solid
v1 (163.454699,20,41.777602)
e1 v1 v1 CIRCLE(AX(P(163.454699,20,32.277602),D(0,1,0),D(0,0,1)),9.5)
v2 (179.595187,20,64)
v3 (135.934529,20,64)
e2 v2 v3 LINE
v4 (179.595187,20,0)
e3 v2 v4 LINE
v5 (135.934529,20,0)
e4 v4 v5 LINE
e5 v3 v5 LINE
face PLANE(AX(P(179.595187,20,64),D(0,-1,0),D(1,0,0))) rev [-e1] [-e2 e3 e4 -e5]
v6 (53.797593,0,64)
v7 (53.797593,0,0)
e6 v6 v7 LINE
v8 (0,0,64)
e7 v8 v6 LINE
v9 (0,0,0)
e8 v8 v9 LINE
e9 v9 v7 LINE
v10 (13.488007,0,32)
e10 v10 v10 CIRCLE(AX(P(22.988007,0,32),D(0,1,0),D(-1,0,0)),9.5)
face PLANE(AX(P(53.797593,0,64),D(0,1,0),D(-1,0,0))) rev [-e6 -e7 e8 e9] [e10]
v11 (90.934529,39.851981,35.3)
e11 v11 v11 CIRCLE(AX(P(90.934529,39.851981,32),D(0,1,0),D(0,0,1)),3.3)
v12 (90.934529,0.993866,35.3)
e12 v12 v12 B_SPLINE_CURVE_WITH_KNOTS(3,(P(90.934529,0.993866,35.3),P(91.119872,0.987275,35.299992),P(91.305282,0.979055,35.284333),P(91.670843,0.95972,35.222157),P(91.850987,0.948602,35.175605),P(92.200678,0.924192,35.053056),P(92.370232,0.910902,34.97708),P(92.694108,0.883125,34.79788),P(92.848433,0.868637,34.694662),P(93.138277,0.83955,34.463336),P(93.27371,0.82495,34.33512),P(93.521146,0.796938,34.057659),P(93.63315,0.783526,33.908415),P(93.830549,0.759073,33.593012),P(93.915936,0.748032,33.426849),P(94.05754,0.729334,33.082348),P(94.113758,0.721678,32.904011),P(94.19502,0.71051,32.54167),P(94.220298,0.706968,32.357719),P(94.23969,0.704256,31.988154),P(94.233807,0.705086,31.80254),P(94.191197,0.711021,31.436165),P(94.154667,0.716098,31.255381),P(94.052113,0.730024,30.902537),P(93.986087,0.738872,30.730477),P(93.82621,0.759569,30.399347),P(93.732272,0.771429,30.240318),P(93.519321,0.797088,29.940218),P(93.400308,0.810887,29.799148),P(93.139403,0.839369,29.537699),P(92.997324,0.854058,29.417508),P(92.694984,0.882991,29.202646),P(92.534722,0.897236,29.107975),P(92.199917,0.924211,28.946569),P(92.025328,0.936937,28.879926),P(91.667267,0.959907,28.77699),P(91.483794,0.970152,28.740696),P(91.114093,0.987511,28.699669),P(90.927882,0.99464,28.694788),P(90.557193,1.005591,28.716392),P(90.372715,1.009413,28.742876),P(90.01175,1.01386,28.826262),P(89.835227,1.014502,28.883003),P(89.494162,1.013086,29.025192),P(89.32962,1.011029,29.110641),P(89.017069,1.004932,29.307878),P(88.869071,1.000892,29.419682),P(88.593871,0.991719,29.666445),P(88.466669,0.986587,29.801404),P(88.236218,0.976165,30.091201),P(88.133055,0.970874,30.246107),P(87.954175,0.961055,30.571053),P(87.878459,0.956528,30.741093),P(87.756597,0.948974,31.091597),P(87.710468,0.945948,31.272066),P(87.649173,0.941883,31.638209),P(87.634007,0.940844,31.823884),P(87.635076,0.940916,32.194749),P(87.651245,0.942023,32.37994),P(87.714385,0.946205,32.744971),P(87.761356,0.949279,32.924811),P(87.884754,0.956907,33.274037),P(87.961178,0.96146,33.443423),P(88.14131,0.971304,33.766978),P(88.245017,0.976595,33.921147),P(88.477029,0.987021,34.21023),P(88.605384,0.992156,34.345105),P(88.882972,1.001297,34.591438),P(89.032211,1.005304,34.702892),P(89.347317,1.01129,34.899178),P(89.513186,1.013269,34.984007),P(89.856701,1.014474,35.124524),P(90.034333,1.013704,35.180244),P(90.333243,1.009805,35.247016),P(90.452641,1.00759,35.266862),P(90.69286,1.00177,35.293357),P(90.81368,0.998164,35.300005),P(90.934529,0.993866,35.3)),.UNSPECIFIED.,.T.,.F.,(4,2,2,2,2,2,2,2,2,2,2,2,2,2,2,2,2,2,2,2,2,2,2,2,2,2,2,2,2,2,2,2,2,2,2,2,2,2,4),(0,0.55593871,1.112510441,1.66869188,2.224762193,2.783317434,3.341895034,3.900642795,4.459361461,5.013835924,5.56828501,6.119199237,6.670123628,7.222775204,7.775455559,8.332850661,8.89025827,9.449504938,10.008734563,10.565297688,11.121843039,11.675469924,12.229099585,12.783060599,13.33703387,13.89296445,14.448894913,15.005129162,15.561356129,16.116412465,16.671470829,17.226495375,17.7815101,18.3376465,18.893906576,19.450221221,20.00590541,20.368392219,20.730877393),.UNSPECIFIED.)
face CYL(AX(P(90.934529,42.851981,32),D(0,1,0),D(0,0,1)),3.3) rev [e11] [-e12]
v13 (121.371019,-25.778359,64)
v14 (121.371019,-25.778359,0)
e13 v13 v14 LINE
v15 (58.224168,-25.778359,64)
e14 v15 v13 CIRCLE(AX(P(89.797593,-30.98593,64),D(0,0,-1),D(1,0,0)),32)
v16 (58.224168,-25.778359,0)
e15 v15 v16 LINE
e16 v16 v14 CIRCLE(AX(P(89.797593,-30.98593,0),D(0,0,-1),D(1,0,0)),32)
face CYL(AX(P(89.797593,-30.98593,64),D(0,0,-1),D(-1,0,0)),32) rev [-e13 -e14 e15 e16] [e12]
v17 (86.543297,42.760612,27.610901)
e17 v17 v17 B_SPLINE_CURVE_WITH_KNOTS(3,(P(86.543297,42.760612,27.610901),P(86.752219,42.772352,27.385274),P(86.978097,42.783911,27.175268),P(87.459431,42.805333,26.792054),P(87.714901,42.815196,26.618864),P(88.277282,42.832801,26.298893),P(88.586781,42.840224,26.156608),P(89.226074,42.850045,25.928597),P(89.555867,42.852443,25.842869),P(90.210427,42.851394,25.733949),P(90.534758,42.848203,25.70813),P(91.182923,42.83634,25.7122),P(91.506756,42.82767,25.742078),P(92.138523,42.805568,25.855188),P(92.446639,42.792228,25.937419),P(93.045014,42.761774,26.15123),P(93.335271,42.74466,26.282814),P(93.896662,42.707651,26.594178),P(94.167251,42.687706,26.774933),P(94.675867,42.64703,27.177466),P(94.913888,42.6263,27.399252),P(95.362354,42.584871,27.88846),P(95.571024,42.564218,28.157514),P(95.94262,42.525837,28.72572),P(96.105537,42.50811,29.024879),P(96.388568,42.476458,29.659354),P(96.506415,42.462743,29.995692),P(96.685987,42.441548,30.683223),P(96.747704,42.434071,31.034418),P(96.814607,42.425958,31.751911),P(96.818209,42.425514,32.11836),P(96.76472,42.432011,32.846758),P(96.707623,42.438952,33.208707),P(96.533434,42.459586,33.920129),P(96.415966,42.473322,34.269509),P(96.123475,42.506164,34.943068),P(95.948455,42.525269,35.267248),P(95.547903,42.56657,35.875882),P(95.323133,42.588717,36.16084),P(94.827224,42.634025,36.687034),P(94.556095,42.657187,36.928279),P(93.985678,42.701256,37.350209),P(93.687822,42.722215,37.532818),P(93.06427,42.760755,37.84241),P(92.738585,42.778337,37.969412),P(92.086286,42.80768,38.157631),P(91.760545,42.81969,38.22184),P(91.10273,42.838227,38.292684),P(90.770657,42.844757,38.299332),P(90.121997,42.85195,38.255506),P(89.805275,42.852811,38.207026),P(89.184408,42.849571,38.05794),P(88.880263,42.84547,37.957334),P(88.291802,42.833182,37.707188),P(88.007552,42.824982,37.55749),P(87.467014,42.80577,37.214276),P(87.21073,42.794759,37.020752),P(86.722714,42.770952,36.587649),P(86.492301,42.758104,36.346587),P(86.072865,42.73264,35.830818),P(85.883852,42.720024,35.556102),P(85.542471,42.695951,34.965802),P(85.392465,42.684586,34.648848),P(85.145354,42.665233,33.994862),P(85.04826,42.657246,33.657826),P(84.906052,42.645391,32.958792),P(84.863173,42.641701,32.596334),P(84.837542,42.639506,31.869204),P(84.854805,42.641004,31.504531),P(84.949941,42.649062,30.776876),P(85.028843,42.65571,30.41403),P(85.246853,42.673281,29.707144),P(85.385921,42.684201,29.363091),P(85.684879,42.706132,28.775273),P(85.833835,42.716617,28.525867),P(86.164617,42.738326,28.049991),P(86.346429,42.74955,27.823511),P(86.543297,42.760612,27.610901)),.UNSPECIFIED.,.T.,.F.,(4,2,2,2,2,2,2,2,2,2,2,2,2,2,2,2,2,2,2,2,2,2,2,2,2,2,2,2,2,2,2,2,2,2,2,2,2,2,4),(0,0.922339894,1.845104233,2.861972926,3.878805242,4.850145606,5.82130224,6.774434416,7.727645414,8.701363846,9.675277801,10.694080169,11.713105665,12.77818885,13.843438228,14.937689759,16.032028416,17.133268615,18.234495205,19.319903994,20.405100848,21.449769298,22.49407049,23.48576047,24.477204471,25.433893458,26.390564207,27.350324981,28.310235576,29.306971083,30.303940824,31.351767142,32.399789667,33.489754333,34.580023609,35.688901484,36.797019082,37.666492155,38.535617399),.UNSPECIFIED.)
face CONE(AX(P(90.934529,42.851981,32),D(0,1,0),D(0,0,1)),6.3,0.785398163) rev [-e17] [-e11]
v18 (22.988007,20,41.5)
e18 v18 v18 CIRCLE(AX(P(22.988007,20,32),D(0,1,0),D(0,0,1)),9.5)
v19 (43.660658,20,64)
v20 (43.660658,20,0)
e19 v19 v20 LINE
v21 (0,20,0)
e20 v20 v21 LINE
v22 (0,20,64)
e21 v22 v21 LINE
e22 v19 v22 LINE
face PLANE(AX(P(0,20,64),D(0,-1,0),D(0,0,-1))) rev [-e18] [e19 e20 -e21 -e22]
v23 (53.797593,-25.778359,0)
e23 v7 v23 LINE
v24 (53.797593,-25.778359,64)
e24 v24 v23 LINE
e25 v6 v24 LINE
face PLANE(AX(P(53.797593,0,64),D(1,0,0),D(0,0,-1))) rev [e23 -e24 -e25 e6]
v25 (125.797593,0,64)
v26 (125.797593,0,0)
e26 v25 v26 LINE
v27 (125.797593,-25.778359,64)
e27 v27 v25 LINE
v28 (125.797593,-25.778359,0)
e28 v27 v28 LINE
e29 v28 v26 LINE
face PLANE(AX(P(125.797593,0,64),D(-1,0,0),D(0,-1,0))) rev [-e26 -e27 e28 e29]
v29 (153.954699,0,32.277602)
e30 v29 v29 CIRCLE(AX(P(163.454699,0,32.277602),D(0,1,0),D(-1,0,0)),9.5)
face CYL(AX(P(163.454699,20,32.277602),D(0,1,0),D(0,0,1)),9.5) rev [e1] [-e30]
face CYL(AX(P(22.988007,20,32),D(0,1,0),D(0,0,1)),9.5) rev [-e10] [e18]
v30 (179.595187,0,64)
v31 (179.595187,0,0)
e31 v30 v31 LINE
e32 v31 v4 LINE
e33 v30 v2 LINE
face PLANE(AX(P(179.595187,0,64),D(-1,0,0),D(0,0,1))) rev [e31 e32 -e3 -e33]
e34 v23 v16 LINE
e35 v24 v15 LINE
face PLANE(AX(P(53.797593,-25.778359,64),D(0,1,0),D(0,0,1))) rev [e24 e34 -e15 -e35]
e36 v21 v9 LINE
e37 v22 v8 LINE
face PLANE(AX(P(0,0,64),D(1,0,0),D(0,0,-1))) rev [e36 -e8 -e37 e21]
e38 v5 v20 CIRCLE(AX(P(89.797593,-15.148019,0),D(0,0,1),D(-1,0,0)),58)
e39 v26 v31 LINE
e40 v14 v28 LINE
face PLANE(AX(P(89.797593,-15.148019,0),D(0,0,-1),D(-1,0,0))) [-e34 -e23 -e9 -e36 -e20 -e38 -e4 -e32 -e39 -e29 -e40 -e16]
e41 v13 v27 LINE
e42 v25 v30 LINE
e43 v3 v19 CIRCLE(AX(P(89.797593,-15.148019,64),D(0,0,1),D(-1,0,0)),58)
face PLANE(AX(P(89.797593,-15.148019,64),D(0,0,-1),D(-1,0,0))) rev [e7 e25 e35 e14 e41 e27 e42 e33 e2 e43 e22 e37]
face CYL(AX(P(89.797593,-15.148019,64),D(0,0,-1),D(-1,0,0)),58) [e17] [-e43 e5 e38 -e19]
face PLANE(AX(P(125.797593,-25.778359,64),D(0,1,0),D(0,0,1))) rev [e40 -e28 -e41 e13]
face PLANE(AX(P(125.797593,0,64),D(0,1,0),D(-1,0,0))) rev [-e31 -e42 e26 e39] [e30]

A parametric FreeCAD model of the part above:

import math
import FreeCAD as App
import Part
import Sketcher
from FreeCAD import Vector
Q = App.Units.Quantity

doc = App.newDocument("Part")
body = doc.addObject("PartDesign::Body", "Body")

# Sketch on XY plane
sketch1 = body.newObject("Sketcher::SketchObject", "Sketch")
sketch1.AttachmentSupport = (doc.getObject("XY_Plane"), [""])
sketch1.MapMode = "FlatFace"
sketch1.addGeometry([
    Part.LineSegment(Vector(0, 20, 0), Vector(0, 0, 0)),  # 0
    Part.LineSegment(Vector(0, 0, 0), Vector(53.8, 0, 0)),  # 1
    Part.LineSegment(Vector(53.8, 0, 0), Vector(53.8, -25.8, 0)),  # 2
    Part.LineSegment(Vector(53.8, -25.8, 0), Vector(58.2, -25.8, 0)),  # 3
    Part.ArcOfCircle(Part.Circle(Vector(89.8, -31, 0), Vector(0, 0, 1), 32), math.radians(9), math.radians(171)),  # 4
    Part.LineSegment(Vector(121.4, -25.8, 0), Vector(125.8, -25.8, 0)),  # 5
    Part.LineSegment(Vector(125.8, -25.8, 0), Vector(125.8, 0, 0)),  # 6
    Part.LineSegment(Vector(125.8, 0, 0), Vector(179.6, 0, 0)),  # 7
    Part.LineSegment(Vector(179.6, 0, 0), Vector(179.6, 20, 0)),  # 8
    Part.LineSegment(Vector(179.6, 20, 0), Vector(135.9, 20, 0)),  # 9
    Part.ArcOfCircle(Part.Circle(Vector(89.8, -15.1, 0), Vector(0, 0, 1), 58), math.radians(37), math.radians(143)),  # 10
    Part.LineSegment(Vector(43.7, 20, 0), Vector(0, 20, 0)),  # 11
], False)
sketch1.addConstraint([
    Sketcher.Constraint("Coincident", 0, 2, 1, 1),
    Sketcher.Constraint("Coincident", 1, 2, 2, 1),
    Sketcher.Constraint("Coincident", 2, 2, 3, 1),
    Sketcher.Constraint("Coincident", 3, 2, 4, 2),
    Sketcher.Constraint("Coincident", 4, 1, 5, 1),
    Sketcher.Constraint("Coincident", 5, 2, 6, 1),
    Sketcher.Constraint("Coincident", 6, 2, 7, 1),
    Sketcher.Constraint("Coincident", 7, 2, 8, 1),
    Sketcher.Constraint("Coincident", 8, 2, 9, 1),
    Sketcher.Constraint("Coincident", 9, 2, 10, 1),
    Sketcher.Constraint("Coincident", 10, 2, 11, 1),
    Sketcher.Constraint("Coincident", 11, 2, 0, 1),
    Sketcher.Constraint("Vertical", 0),
    Sketcher.Constraint("Horizontal", 1),
    Sketcher.Constraint("Vertical", 2),
    Sketcher.Constraint("Horizontal", 3),
    Sketcher.Constraint("Horizontal", 5),
    Sketcher.Constraint("Vertical", 6),
    Sketcher.Constraint("Horizontal", 7),
    Sketcher.Constraint("Vertical", 8),
    Sketcher.Constraint("Horizontal", 9),
    Sketcher.Constraint("Horizontal", 11),
    Sketcher.Constraint("Coincident", 0, 2, -1, 1),
    Sketcher.Constraint("PointOnObject", 6, 2, -1),
    Sketcher.Constraint("Horizontal", 3, 2, 4, 1),
    Sketcher.Constraint("Horizontal", 9, 2, 10, 2),
    Sketcher.Constraint("Vertical", 4, 3, 10, 3),
    Sketcher.Constraint("Equal", 3, 5),
    Sketcher.Constraint("Equal", 1, 7),
    Sketcher.Constraint("Radius", 4, Q("32 mm")),
    Sketcher.Constraint("Radius", 10, Q("58 mm")),
    Sketcher.Constraint("DistanceY", 0, 2, 0, 1, Q("20 mm")),
    Sketcher.Constraint("DistanceX", 1, 2, 10, 3, Q("36 mm")),
    Sketcher.Constraint("DistanceX", 9, 2, 9, 1, Q("43.660658 mm")),
    Sketcher.Constraint("DistanceY", 2, 2, 2, 1, Q("25.778359 mm")),
    Sketcher.Constraint("DistanceX", 1, 1, 1, 2, Q("53.797593 mm")),
    Sketcher.Constraint("DistanceX", 3, 1, 3, 2, Q("4.426574 mm")),
])
pad1 = body.newObject("PartDesign::Pad", "Pad")
pad1.Profile = sketch1
pad1.Length = 64

# Sketch on XZ plane
sketch2 = body.newObject("Sketcher::SketchObject", "Sketch001")
sketch2.AttachmentSupport = (doc.getObject("XZ_Plane"), [""])
sketch2.MapMode = "FlatFace"
sketch2.AttachmentOffset = App.Placement(Vector(0, 0, -20), App.Rotation())
sketch2.addGeometry([
    Part.Circle(Vector(23, 32, 0), Vector(0, 0, 1), 10),
    Part.Circle(Vector(163, 32, 0), Vector(0, 0, 1), 10),
], False)
sketch2.addConstraint([
    Sketcher.Constraint("Equal", 0, 1),
    Sketcher.Constraint("Diameter", 0, Q("19 mm")),
    Sketcher.Constraint("DistanceY", -1, 1, 0, 3, Q("32 mm")),
    Sketcher.Constraint("DistanceX", -1, 1, 1, 3, Q("163.454699 mm")),
    Sketcher.Constraint("DistanceX", -1, 1, 0, 3, Q("22.988007 mm")),
    Sketcher.Constraint("DistanceY", -1, 1, 1, 3, Q("32.277602 mm")),
])
doc.recompute()
hole = body.newObject("PartDesign::Hole", "Hole")
hole.Profile = sketch2
hole.ThreadType = "None"
hole.Diameter = 19
hole.DepthType = "Dimension"
hole.Depth = 130
hole.DrillPoint = "Angled"
hole.DrillPointAngle = 118
hole.Reversed = True

# Sketch on XZ plane
sketch3 = body.newObject("Sketcher::SketchObject", "Sketch002")
sketch3.AttachmentSupport = (doc.getObject("XZ_Plane"), [""])
sketch3.MapMode = "FlatFace"
sketch3.AttachmentOffset = App.Placement(Vector(0, 0, -42.851981), App.Rotation())
sketch3.addGeometry(Part.Circle(Vector(90.9, 32, 0), Vector(0, 0, 1), 3.3), False)
sketch3.addConstraint([
    Sketcher.Constraint("Diameter", 0, Q("6.6 mm")),
    Sketcher.Constraint("DistanceY", -1, 1, 0, 3, Q("32 mm")),
    Sketcher.Constraint("DistanceX", -1, 1, 0, 3, Q("90.934529 mm")),
])
doc.recompute()
hole2 = body.newObject("PartDesign::Hole", "Hole001")
hole2.Profile = sketch3
hole2.ThreadType = "None"
hole2.Diameter = 6.6
hole2.DepthType = "Dimension"
hole2.Depth = 130
hole2.DrillPoint = "Angled"
hole2.DrillPointAngle = 118
hole2.HoleCutType = "Countersink"
hole2.HoleCutDiameter = 12.6
hole2.HoleCutCountersinkAngle = 90
hole2.Reversed = True

doc.recompute()
